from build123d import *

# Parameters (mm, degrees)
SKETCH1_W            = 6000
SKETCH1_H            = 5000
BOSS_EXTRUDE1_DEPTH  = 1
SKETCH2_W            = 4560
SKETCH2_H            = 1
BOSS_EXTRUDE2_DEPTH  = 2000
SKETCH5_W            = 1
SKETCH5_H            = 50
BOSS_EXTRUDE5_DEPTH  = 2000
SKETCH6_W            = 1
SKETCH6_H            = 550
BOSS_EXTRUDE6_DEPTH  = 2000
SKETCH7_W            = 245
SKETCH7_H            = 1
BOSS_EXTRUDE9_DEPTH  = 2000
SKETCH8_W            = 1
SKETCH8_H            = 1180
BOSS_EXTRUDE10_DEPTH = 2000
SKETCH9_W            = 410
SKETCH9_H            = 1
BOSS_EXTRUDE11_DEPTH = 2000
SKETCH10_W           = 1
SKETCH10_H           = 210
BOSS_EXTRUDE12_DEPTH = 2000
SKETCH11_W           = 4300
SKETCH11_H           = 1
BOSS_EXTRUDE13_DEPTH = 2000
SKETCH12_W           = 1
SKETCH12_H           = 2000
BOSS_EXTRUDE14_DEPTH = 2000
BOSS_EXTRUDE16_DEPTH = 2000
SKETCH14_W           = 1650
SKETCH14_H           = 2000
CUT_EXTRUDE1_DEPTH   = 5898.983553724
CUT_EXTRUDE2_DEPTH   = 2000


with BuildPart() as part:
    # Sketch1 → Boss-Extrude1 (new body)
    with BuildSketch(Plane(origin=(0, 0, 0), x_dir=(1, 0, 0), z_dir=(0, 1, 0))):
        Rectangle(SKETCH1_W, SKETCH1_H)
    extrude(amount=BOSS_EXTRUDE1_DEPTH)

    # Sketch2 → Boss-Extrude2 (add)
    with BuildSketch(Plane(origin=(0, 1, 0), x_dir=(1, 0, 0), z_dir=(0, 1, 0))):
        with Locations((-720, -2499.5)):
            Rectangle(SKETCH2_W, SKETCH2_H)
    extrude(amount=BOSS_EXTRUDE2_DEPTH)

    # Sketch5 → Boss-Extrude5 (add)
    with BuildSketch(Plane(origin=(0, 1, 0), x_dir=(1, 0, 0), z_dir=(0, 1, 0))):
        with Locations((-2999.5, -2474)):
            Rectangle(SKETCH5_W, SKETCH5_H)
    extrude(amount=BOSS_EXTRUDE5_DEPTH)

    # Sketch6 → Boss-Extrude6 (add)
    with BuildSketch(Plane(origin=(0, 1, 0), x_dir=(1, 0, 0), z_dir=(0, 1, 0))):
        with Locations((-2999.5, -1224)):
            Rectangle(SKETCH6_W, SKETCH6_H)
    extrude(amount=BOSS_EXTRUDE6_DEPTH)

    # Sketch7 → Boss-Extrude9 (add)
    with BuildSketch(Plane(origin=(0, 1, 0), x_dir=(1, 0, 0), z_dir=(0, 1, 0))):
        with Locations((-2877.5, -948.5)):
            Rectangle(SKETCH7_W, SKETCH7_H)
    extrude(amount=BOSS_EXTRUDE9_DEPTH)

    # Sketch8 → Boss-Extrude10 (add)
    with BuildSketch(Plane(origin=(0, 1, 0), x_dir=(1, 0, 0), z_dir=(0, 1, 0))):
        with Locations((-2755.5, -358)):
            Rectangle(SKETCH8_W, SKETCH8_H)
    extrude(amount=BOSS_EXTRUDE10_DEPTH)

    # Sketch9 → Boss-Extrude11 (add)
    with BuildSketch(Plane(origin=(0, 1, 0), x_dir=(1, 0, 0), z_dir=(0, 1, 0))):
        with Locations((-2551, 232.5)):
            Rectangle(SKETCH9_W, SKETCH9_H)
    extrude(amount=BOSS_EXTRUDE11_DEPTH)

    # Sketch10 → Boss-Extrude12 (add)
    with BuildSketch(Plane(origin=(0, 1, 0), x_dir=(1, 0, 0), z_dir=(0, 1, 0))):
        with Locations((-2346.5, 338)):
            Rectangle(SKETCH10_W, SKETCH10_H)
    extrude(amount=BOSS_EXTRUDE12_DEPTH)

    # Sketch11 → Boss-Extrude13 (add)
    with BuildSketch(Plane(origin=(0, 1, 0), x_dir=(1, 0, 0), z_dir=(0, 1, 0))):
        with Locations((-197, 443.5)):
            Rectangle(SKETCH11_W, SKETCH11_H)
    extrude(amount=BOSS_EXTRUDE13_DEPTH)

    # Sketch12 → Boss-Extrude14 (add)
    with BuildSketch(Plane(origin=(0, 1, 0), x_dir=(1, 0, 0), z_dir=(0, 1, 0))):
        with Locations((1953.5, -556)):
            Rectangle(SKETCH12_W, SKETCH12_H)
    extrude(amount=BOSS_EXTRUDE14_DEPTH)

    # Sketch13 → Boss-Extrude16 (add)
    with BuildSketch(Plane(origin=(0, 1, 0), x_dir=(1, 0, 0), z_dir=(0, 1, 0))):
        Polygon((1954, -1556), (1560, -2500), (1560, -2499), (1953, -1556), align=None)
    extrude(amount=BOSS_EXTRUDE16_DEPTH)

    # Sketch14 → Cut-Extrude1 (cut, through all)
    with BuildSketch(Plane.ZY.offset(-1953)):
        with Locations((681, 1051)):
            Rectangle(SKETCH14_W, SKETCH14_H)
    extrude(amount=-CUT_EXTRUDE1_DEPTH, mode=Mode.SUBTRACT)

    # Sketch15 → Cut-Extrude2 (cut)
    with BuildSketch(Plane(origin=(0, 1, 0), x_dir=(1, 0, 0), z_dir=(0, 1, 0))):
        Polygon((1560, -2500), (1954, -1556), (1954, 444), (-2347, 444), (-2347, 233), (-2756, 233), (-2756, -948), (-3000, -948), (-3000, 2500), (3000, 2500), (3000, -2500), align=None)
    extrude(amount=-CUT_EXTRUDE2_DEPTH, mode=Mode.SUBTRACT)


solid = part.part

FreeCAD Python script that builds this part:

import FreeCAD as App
import Part
import Sketcher

V = App.Vector
Q = App.Units.Quantity

doc = App.newDocument("Part")
body = doc.addObject("PartDesign::Body", "Body")

sketch1 = body.newObject("Sketcher::SketchObject", "Sketch")
sketch1.AttachmentSupport = (doc.getObject("XZ_Plane"), [""])
sketch1.MapMode = "FlatFace"
sketch1.addGeometry(Part.LineSegment(V(-3000, -2500, 0), V(-3000, 2500, 0)), False)
sketch1.addGeometry(Part.LineSegment(V(-3000, 2500, 0), V(3000, 2500, 0)), False)
sketch1.addGeometry(Part.LineSegment(V(3000, 2500, 0), V(3000, -2500, 0)), False)
sketch1.addGeometry(Part.LineSegment(V(3000, -2500, 0), V(-3000, -2500, 0)), False)
sketch1.addConstraint(Sketcher.Constraint("Coincident", 0, 2, 1, 1))
sketch1.addConstraint(Sketcher.Constraint("Coincident", 1, 2, 2, 1))
sketch1.addConstraint(Sketcher.Constraint("Coincident", 2, 2, 3, 1))
sketch1.addConstraint(Sketcher.Constraint("Coincident", 3, 2, 0, 1))
sketch1.addConstraint(Sketcher.Constraint("Vertical", 0))
sketch1.addConstraint(Sketcher.Constraint("Horizontal", 1))
sketch1.addConstraint(Sketcher.Constraint("Vertical", 2))
sketch1.addConstraint(Sketcher.Constraint("Horizontal", 3))
sketch1.addConstraint(Sketcher.Constraint("Symmetric", 0, 2, 2, 2, -1, 1))
sketch1.addConstraint(Sketcher.Constraint("DistanceX", 1, 1, 1, 2, Q("6000 mm")))
sketch1.addConstraint(Sketcher.Constraint("DistanceY", 0, 1, 0, 2, Q("5000 mm")))
pad1 = body.newObject("PartDesign::Pad", "Pad")
pad1.Profile = sketch1
pad1.Length = 1
pad1.Reversed = True

sketch2 = body.newObject("Sketcher::SketchObject", "Sketch001")
sketch2.AttachmentSupport = (doc.getObject("XZ_Plane"), [""])
sketch2.MapMode = "FlatFace"
sketch2.AttachmentOffset = App.Placement(V(0, 0, -1), App.Rotation())
sketch2.addGeometry(Part.LineSegment(V(-3000, 2499, 0), V(-3000, 2500, 0)), False)
sketch2.addGeometry(Part.LineSegment(V(-3000, 2500, 0), V(1560, 2500, 0)), False)
sketch2.addGeometry(Part.LineSegment(V(1560, 2500, 0), V(1560, 2499, 0)), False)
sketch2.addGeometry(Part.LineSegment(V(1560, 2499, 0), V(-3000, 2499, 0)), False)
sketch2.addConstraint(Sketcher.Constraint("Coincident", 0, 2, 1, 1))
sketch2.addConstraint(Sketcher.Constraint("Coincident", 1, 2, 2, 1))
sketch2.addConstraint(Sketcher.Constraint("Coincident", 2, 2, 3, 1))
sketch2.addConstraint(Sketcher.Constraint("Coincident", 3, 2, 0, 1))
sketch2.addConstraint(Sketcher.Constraint("Vertical", 0))
sketch2.addConstraint(Sketcher.Constraint("Horizontal", 1))
sketch2.addConstraint(Sketcher.Constraint("Vertical", 2))
sketch2.addConstraint(Sketcher.Constraint("Horizontal", 3))
sketch2.addConstraint(Sketcher.Constraint("DistanceX", 1, 1, 1, 2, Q("4560 mm")))
sketch2.addConstraint(Sketcher.Constraint("DistanceY", 0, 1, 0, 2, Q("1 mm")))
sketch2.addConstraint(Sketcher.Constraint("DistanceX", 0, 2, -1, 1, Q("3000 mm")))
sketch2.addConstraint(Sketcher.Constraint("DistanceY", -1, 1, 0, 2, Q("2500 mm")))
pad2 = body.newObject("PartDesign::Pad", "Pad001")
pad2.Profile = sketch2
pad2.Length = 2000
pad2.Reversed = True

sketch3 = body.newObject("Sketcher::SketchObject", "Sketch002")
sketch3.AttachmentSupport = (doc.getObject("XZ_Plane"), [""])
sketch3.MapMode = "FlatFace"
sketch3.AttachmentOffset = App.Placement(V(0, 0, -1), App.Rotation())
sketch3.addGeometry(Part.LineSegment(V(-3000, 2449, 0), V(-3000, 2499, 0)), False)
sketch3.addGeometry(Part.LineSegment(V(-3000, 2499, 0), V(-2999, 2499, 0)), False)
sketch3.addGeometry(Part.LineSegment(V(-2999, 2499, 0), V(-2999, 2449, 0)), False)
sketch3.addGeometry(Part.LineSegment(V(-2999, 2449, 0), V(-3000, 2449, 0)), False)
sketch3.addConstraint(Sketcher.Constraint("Coincident", 0, 2, 1, 1))
sketch3.addConstraint(Sketcher.Constraint("Coincident", 1, 2, 2, 1))
sketch3.addConstraint(Sketcher.Constraint("Coincident", 2, 2, 3, 1))
sketch3.addConstraint(Sketcher.Constraint("Coincident", 3, 2, 0, 1))
sketch3.addConstraint(Sketcher.Constraint("Vertical", 0))
sketch3.addConstraint(Sketcher.Constraint("Horizontal", 1))
sketch3.addConstraint(Sketcher.Constraint("Vertical", 2))
sketch3.addConstraint(Sketcher.Constraint("Horizontal", 3))
sketch3.addConstraint(Sketcher.Constraint("DistanceX", 1, 1, 1, 2, Q("1 mm")))
sketch3.addConstraint(Sketcher.Constraint("DistanceY", 0, 1, 0, 2, Q("50 mm")))
sketch3.addConstraint(Sketcher.Constraint("DistanceX", 0, 2, -1, 1, Q("3000 mm")))
sketch3.addConstraint(Sketcher.Constraint("DistanceY", -1, 1, 0, 2, Q("2499 mm")))
pad3 = body.newObject("PartDesign::Pad", "Pad002")
pad3.Profile = sketch3
pad3.Length = 2000
pad3.Reversed = True

sketch4 = body.newObject("Sketcher::SketchObject", "Sketch003")
sketch4.AttachmentSupport = (doc.getObject("XZ_Plane"), [""])
sketch4.MapMode = "FlatFace"
sketch4.AttachmentOffset = App.Placement(V(0, 0, -1), App.Rotation())
sketch4.addGeometry(Part.LineSegment(V(-3000, 949, 0), V(-3000, 1499, 0)), False)
sketch4.addGeometry(Part.LineSegment(V(-3000, 1499, 0), V(-2999, 1499, 0)), False)
sketch4.addGeometry(Part.LineSegment(V(-2999, 1499, 0), V(-2999, 949, 0)), False)
sketch4.addGeometry(Part.LineSegment(V(-2999, 949, 0), V(-3000, 949, 0)), False)
sketch4.addConstraint(Sketcher.Constraint("Coincident", 0, 2, 1, 1))
sketch4.addConstraint(Sketcher.Constraint("Coincident", 1, 2, 2, 1))
sketch4.addConstraint(Sketcher.Constraint("Coincident", 2, 2, 3, 1))
sketch4.addConstraint(Sketcher.Constraint("Coincident", 3, 2, 0, 1))
sketch4.addConstraint(Sketcher.Constraint("Vertical", 0))
sketch4.addConstraint(Sketcher.Constraint("Horizontal", 1))
sketch4.addConstraint(Sketcher.Constraint("Vertical", 2))
sketch4.addConstraint(Sketcher.Constraint("Horizontal", 3))
sketch4.addConstraint(Sketcher.Constraint("DistanceX", 1, 1, 1, 2, Q("1 mm")))
sketch4.addConstraint(Sketcher.Constraint("DistanceY", 0, 1, 0, 2, Q("550 mm")))
sketch4.addConstraint(Sketcher.Constraint("DistanceX", 0, 2, -1, 1, Q("3000 mm")))
sketch4.addConstraint(Sketcher.Constraint("DistanceY", -1, 1, 0, 2, Q("1499 mm")))
pad4 = body.newObject("PartDesign::Pad", "Pad003")
pad4.Profile = sketch4
pad4.Length = 2000
pad4.Reversed = True

sketch5 = body.newObject("Sketcher::SketchObject", "Sketch004")
sketch5.AttachmentSupport = (doc.getObject("XZ_Plane"), [""])
sketch5.MapMode = "FlatFace"
sketch5.AttachmentOffset = App.Placement(V(0, 0, -1), App.Rotation())
sketch5.addGeometry(Part.LineSegment(V(-3000, 948, 0), V(-3000, 949, 0)), False)
sketch5.addGeometry(Part.LineSegment(V(-3000, 949, 0), V(-2755, 949, 0)), False)
sketch5.addGeometry(Part.LineSegment(V(-2755, 949, 0), V(-2755, 948, 0)), False)
sketch5.addGeometry(Part.LineSegment(V(-2755, 948, 0), V(-3000, 948, 0)), False)
sketch5.addConstraint(Sketcher.Constraint("Coincident", 0, 2, 1, 1))
sketch5.addConstraint(Sketcher.Constraint("Coincident", 1, 2, 2, 1))
sketch5.addConstraint(Sketcher.Constraint("Coincident", 2, 2, 3, 1))
sketch5.addConstraint(Sketcher.Constraint("Coincident", 3, 2, 0, 1))
sketch5.addConstraint(Sketcher.Constraint("Vertical", 0))
sketch5.addConstraint(Sketcher.Constraint("Horizontal", 1))
sketch5.addConstraint(Sketcher.Constraint("Vertical", 2))
sketch5.addConstraint(Sketcher.Constraint("Horizontal", 3))
sketch5.addConstraint(Sketcher.Constraint("DistanceX", 1, 1, 1, 2, Q("245 mm")))
sketch5.addConstraint(Sketcher.Constraint("DistanceY", 0, 1, 0, 2, Q("1 mm")))
sketch5.addConstraint(Sketcher.Constraint("DistanceX", 0, 2, -1, 1, Q("3000 mm")))
sketch5.addConstraint(Sketcher.Constraint("DistanceY", -1, 1, 0, 2, Q("949 mm")))
pad5 = body.newObject("PartDesign::Pad", "Pad004")
pad5.Profile = sketch5
pad5.Length = 2000
pad5.Reversed = True

sketch6 = body.newObject("Sketcher::SketchObject", "Sketch005")
sketch6.AttachmentSupport = (doc.getObject("XZ_Plane"), [""])
sketch6.MapMode = "FlatFace"
sketch6.AttachmentOffset = App.Placement(V(0, 0, -1), App.Rotation())
sketch6.addGeometry(Part.LineSegment(V(-2756, -232, 0), V(-2756, 948, 0)), False)
sketch6.addGeometry(Part.LineSegment(V(-2756, 948, 0), V(-2755, 948, 0)), False)
sketch6.addGeometry(Part.LineSegment(V(-2755, 948, 0), V(-2755, -232, 0)), False)
sketch6.addGeometry(Part.LineSegment(V(-2755, -232, 0), V(-2756, -232, 0)), False)
sketch6.addConstraint(Sketcher.Constraint("Coincident", 0, 2, 1, 1))
sketch6.addConstraint(Sketcher.Constraint("Coincident", 1, 2, 2, 1))
sketch6.addConstraint(Sketcher.Constraint("Coincident", 2, 2, 3, 1))
sketch6.addConstraint(Sketcher.Constraint("Coincident", 3, 2, 0, 1))
sketch6.addConstraint(Sketcher.Constraint("Vertical", 0))
sketch6.addConstraint(Sketcher.Constraint("Horizontal", 1))
sketch6.addConstraint(Sketcher.Constraint("Vertical", 2))
sketch6.addConstraint(Sketcher.Constraint("Horizontal", 3))
sketch6.addConstraint(Sketcher.Constraint("DistanceX", 1, 1, 1, 2, Q("1 mm")))
sketch6.addConstraint(Sketcher.Constraint("DistanceY", 0, 1, 0, 2, Q("1180 mm")))
sketch6.addConstraint(Sketcher.Constraint("DistanceX", 0, 2, -1, 1, Q("2756 mm")))
sketch6.addConstraint(Sketcher.Constraint("DistanceY", -1, 1, 0, 2, Q("948 mm")))
pad6 = body.newObject("PartDesign::Pad", "Pad005")
pad6.Profile = sketch6
pad6.Length = 2000
pad6.Reversed = True

sketch7 = body.newObject("Sketcher::SketchObject", "Sketch006")
sketch7.AttachmentSupport = (doc.getObject("XZ_Plane"), [""])
sketch7.MapMode = "FlatFace"
sketch7.AttachmentOffset = App.Placement(V(0, 0, -1), App.Rotation())
sketch7.addGeometry(Part.LineSegment(V(-2756, -233, 0), V(-2756, -232, 0)), False)
sketch7.addGeometry(Part.LineSegment(V(-2756, -232, 0), V(-2346, -232, 0)), False)
sketch7.addGeometry(Part.LineSegment(V(-2346, -232, 0), V(-2346, -233, 0)), False)
sketch7.addGeometry(Part.LineSegment(V(-2346, -233, 0), V(-2756, -233, 0)), False)
sketch7.addConstraint(Sketcher.Constraint("Coincident", 0, 2, 1, 1))
sketch7.addConstraint(Sketcher.Constraint("Coincident", 1, 2, 2, 1))
sketch7.addConstraint(Sketcher.Constraint("Coincident", 2, 2, 3, 1))
sketch7.addConstraint(Sketcher.Constraint("Coincident", 3, 2, 0, 1))
sketch7.addConstraint(Sketcher.Constraint("Vertical", 0))
sketch7.addConstraint(Sketcher.Constraint("Horizontal", 1))
sketch7.addConstraint(Sketcher.Constraint("Vertical", 2))
sketch7.addConstraint(Sketcher.Constraint("Horizontal", 3))
sketch7.addConstraint(Sketcher.Constraint("DistanceX", 1, 1, 1, 2, Q("410 mm")))
sketch7.addConstraint(Sketcher.Constraint("DistanceY", 0, 1, 0, 2, Q("1 mm")))
sketch7.addConstraint(Sketcher.Constraint("DistanceX", 0, 2, -1, 1, Q("2756 mm")))
sketch7.addConstraint(Sketcher.Constraint("DistanceY", 0, 2, -1, 1, Q("232 mm")))
pad7 = body.newObject("PartDesign::Pad", "Pad006")
pad7.Profile = sketch7
pad7.Length = 2000
pad7.Reversed = True

sketch8 = body.newObject("Sketcher::SketchObject", "Sketch007")
sketch8.AttachmentSupport = (doc.getObject("XZ_Plane"), [""])
sketch8.MapMode = "FlatFace"
sketch8.AttachmentOffset = App.Placement(V(0, 0, -1), App.Rotation())
sketch8.addGeometry(Part.LineSegment(V(-2347, -443, 0), V(-2347, -233, 0)), False)
sketch8.addGeometry(Part.LineSegment(V(-2347, -233, 0), V(-2346, -233, 0)), False)
sketch8.addGeometry(Part.LineSegment(V(-2346, -233, 0), V(-2346, -443, 0)), False)
sketch8.addGeometry(Part.LineSegment(V(-2346, -443, 0), V(-2347, -443, 0)), False)
sketch8.addConstraint(Sketcher.Constraint("Coincident", 0, 2, 1, 1))
sketch8.addConstraint(Sketcher.Constraint("Coincident", 1, 2, 2, 1))
sketch8.addConstraint(Sketcher.Constraint("Coincident", 2, 2, 3, 1))
sketch8.addConstraint(Sketcher.Constraint("Coincident", 3, 2, 0, 1))
sketch8.addConstraint(Sketcher.Constraint("Vertical", 0))
sketch8.addConstraint(Sketcher.Constraint("Horizontal", 1))
sketch8.addConstraint(Sketcher.Constraint("Vertical", 2))
sketch8.addConstraint(Sketcher.Constraint("Horizontal", 3))
sketch8.addConstraint(Sketcher.Constraint("DistanceX", 1, 1, 1, 2, Q("1 mm")))
sketch8.addConstraint(Sketcher.Constraint("DistanceY", 0, 1, 0, 2, Q("210 mm")))
sketch8.addConstraint(Sketcher.Constraint("DistanceX", 0, 2, -1, 1, Q("2347 mm")))
sketch8.addConstraint(Sketcher.Constraint("DistanceY", 0, 2, -1, 1, Q("233 mm")))
pad8 = body.newObject("PartDesign::Pad", "Pad007")
pad8.Profile = sketch8
pad8.Length = 2000
pad8.Reversed = True

sketch9 = body.newObject("Sketcher::SketchObject", "Sketch008")
sketch9.AttachmentSupport = (doc.getObject("XZ_Plane"), [""])
sketch9.MapMode = "FlatFace"
sketch9.AttachmentOffset = App.Placement(V(0, 0, -1), App.Rotation())
sketch9.addGeometry(Part.LineSegment(V(-2347, -444, 0), V(-2347, -443, 0)), False)
sketch9.addGeometry(Part.LineSegment(V(-2347, -443, 0), V(1953, -443, 0)), False)
sketch9.addGeometry(Part.LineSegment(V(1953, -443, 0), V(1953, -444, 0)), False)
sketch9.addGeometry(Part.LineSegment(V(1953, -444, 0), V(-2347, -444, 0)), False)
sketch9.addConstraint(Sketcher.Constraint("Coincident", 0, 2, 1, 1))
sketch9.addConstraint(Sketcher.Constraint("Coincident", 1, 2, 2, 1))
sketch9.addConstraint(Sketcher.Constraint("Coincident", 2, 2, 3, 1))
sketch9.addConstraint(Sketcher.Constraint("Coincident", 3, 2, 0, 1))
sketch9.addConstraint(Sketcher.Constraint("Vertical", 0))
sketch9.addConstraint(Sketcher.Constraint("Horizontal", 1))
sketch9.addConstraint(Sketcher.Constraint("Vertical", 2))
sketch9.addConstraint(Sketcher.Constraint("Horizontal", 3))
sketch9.addConstraint(Sketcher.Constraint("DistanceX", 1, 1, 1, 2, Q("4300 mm")))
sketch9.addConstraint(Sketcher.Constraint("DistanceY", 0, 1, 0, 2, Q("1 mm")))
sketch9.addConstraint(Sketcher.Constraint("DistanceX", 0, 2, -1, 1, Q("2347 mm")))
sketch9.addConstraint(Sketcher.Constraint("DistanceY", 0, 2, -1, 1, Q("443 mm")))
pad9 = body.newObject("PartDesign::Pad", "Pad008")
pad9.Profile = sketch9
pad9.Length = 2000
pad9.Reversed = True

sketch10 = body.newObject("Sketcher::SketchObject", "Sketch009")
sketch10.AttachmentSupport = (doc.getObject("XZ_Plane"), [""])
sketch10.MapMode = "FlatFace"
sketch10.AttachmentOffset = App.Placement(V(0, 0, -1), App.Rotation())
sketch10.addGeometry(Part.LineSegment(V(1953, -444, 0), V(1953, 1556, 0)), False)
sketch10.addGeometry(Part.LineSegment(V(1953, 1556, 0), V(1954, 1556, 0)), False)
sketch10.addGeometry(Part.LineSegment(V(1954, 1556, 0), V(1954, -444, 0)), False)
sketch10.addGeometry(Part.LineSegment(V(1954, -444, 0), V(1953, -444, 0)), False)
sketch10.addConstraint(Sketcher.Constraint("Coincident", 0, 2, 1, 1))
sketch10.addConstraint(Sketcher.Constraint("Coincident", 1, 2, 2, 1))
sketch10.addConstraint(Sketcher.Constraint("Coincident", 2, 2, 3, 1))
sketch10.addConstraint(Sketcher.Constraint("Coincident", 3, 2, 0, 1))
sketch10.addConstraint(Sketcher.Constraint("Vertical", 0))
sketch10.addConstraint(Sketcher.Constraint("Horizontal", 1))
sketch10.addConstraint(Sketcher.Constraint("Vertical", 2))
sketch10.addConstraint(Sketcher.Constraint("Horizontal", 3))
sketch10.addConstraint(Sketcher.Constraint("DistanceX", 1, 1, 1, 2, Q("1 mm")))
sketch10.addConstraint(Sketcher.Constraint("DistanceY", 0, 1, 0, 2, Q("2000 mm")))
sketch10.addConstraint(Sketcher.Constraint("DistanceX", -1, 1, 0, 2, Q("1953 mm")))
sketch10.addConstraint(Sketcher.Constraint("DistanceY", -1, 1, 0, 2, Q("1556 mm")))
pad10 = body.newObject("PartDesign::Pad", "Pad009")
pad10.Profile = sketch10
pad10.Length = 2000
pad10.Reversed = True

sketch11 = body.newObject("Sketcher::SketchObject", "Sketch010")
sketch11.AttachmentSupport = (doc.getObject("XZ_Plane"), [""])
sketch11.MapMode = "FlatFace"
sketch11.AttachmentOffset = App.Placement(V(0, 0, -1), App.Rotation())
sketch11.addGeometry(Part.LineSegment(V(1560, 2500, 0), V(1954, 1556, 0)), False)
sketch11.addGeometry(Part.LineSegment(V(1954, 1556, 0), V(1953, 1556, 0)), False)
sketch11.addGeometry(Part.LineSegment(V(1953, 1556, 0), V(1560, 2499, 0)), False)
sketch11.addGeometry(Part.LineSegment(V(1560, 2499, 0), V(1560, 2500, 0)), False)
sketch11.addConstraint(Sketcher.Constraint("Coincident", 0, 2, 1, 1))
sketch11.addConstraint(Sketcher.Constraint("Coincident", 1, 2, 2, 1))
sketch11.addConstraint(Sketcher.Constraint("Coincident", 2, 2, 3, 1))
sketch11.addConstraint(Sketcher.Constraint("Coincident", 3, 2, 0, 1))
sketch11.addConstraint(Sketcher.Constraint("Horizontal", 1))
sketch11.addConstraint(Sketcher.Constraint("Vertical", 3))
sketch11.addConstraint(Sketcher.Constraint("Equal", 1, 3))
sketch11.addConstraint(Sketcher.Constraint("DistanceX", 1, 2, 1, 1, Q("1 mm")))
sketch11.addConstraint(Sketcher.Constraint("DistanceX", -1, 1, 0, 2, Q("1954 mm")))
sketch11.addConstraint(Sketcher.Constraint("DistanceY", -1, 1, 0, 2, Q("1556 mm")))
sketch11.addConstraint(Sketcher.Constraint("DistanceX", -1, 1, 2, 2, Q("1560 mm")))
sketch11.addConstraint(Sketcher.Constraint("DistanceY", -1, 1, 2, 2, Q("2499 mm")))
pad11 = body.newObject("PartDesign::Pad", "Pad010")
pad11.Profile = sketch11
pad11.Length = 2000
pad11.Reversed = True

sketch12 = body.newObject("Sketcher::SketchObject", "Sketch011")
sketch12.AttachmentSupport = (doc.getObject("YZ_Plane"), [""])
sketch12.MapMode = "FlatFace"
sketch12.AttachmentOffset = App.Placement(V(0, 0, 1953), App.Rotation())
sketch12.addGeometry(Part.LineSegment(V(2051, -144, 0), V(51, -144, 0)), False)
sketch12.addGeometry(Part.LineSegment(V(51, -144, 0), V(51, 1506, 0)), False)
sketch12.addGeometry(Part.LineSegment(V(51, 1506, 0), V(2051, 1506, 0)), False)
sketch12.addGeometry(Part.LineSegment(V(2051, 1506, 0), V(2051, -144, 0)), False)
sketch12.addConstraint(Sketcher.Constraint("Coincident", 0, 2, 1, 1))
sketch12.addConstraint(Sketcher.Constraint("Coincident", 1, 2, 2, 1))
sketch12.addConstraint(Sketcher.Constraint("Coincident", 2, 2, 3, 1))
sketch12.addConstraint(Sketcher.Constraint("Coincident", 3, 2, 0, 1))
sketch12.addConstraint(Sketcher.Constraint("Horizontal", 0))
sketch12.addConstraint(Sketcher.Constraint("Vertical", 1))
sketch12.addConstraint(Sketcher.Constraint("Horizontal", 2))
sketch12.addConstraint(Sketcher.Constraint("Vertical", 3))
sketch12.addConstraint(Sketcher.Constraint("DistanceX", 0, 2, 0, 1, Q("2000 mm")))
sketch12.addConstraint(Sketcher.Constraint("DistanceY", 1, 1, 1, 2, Q("1650 mm")))
sketch12.addConstraint(Sketcher.Constraint("DistanceX", -1, 1, 0, 2, Q("51 mm")))
sketch12.addConstraint(Sketcher.Constraint("DistanceY", 0, 2, -1, 1, Q("144 mm")))
pocket1 = body.newObject("PartDesign::Pocket", "Pocket")
pocket1.Profile = sketch12
pocket1.Type = "ThroughAll"
pocket1.Reversed = True

sketch13 = body.newObject("Sketcher::SketchObject", "Sketch012")
sketch13.AttachmentSupport = (doc.getObject("XZ_Plane"), [""])
sketch13.MapMode = "FlatFace"
sketch13.AttachmentOffset = App.Placement(V(0, 0, -1), App.Rotation())
sketch13.addGeometry(Part.LineSegment(V(1954, 1556, 0), V(1560, 2500, 0)), False)
sketch13.addGeometry(Part.LineSegment(V(1560, 2500, 0), V(3000, 2500, 0)), False)
sketch13.addGeometry(Part.LineSegment(V(3000, 2500, 0), V(3000, -2500, 0)), False)
sketch13.addGeometry(Part.LineSegment(V(3000, -2500, 0), V(-3000, -2500, 0)), False)
sketch13.addGeometry(Part.LineSegment(V(-3000, -2500, 0), V(-3000, 948, 0)), False)
sketch13.addGeometry(Part.LineSegment(V(-3000, 948, 0), V(-2756, 948, 0)), False)
sketch13.addGeometry(Part.LineSegment(V(-2756, 948, 0), V(-2756, -233, 0)), False)
sketch13.addGeometry(Part.LineSegment(V(-2756, -233, 0), V(-2347, -233, 0)), False)
sketch13.addGeometry(Part.LineSegment(V(-2347, -233, 0), V(-2347, -444, 0)), False)
sketch13.addGeometry(Part.LineSegment(V(-2347, -444, 0), V(1954, -444, 0)), False)
sketch13.addGeometry(Part.LineSegment(V(1954, -444, 0), V(1954, 1556, 0)), False)
sketch13.addConstraint(Sketcher.Constraint("Coincident", 0, 2, 1, 1))
sketch13.addConstraint(Sketcher.Constraint("Coincident", 1, 2, 2, 1))
sketch13.addConstraint(Sketcher.Constraint("Coincident", 2, 2, 3, 1))
sketch13.addConstraint(Sketcher.Constraint("Coincident", 3, 2, 4, 1))
sketch13.addConstraint(Sketcher.Constraint("Coincident", 4, 2, 5, 1))
sketch13.addConstraint(Sketcher.Constraint("Coincident", 5, 2, 6, 1))
sketch13.addConstraint(Sketcher.Constraint("Coincident", 6, 2, 7, 1))
sketch13.addConstraint(Sketcher.Constraint("Coincident", 7, 2, 8, 1))
sketch13.addConstraint(Sketcher.Constraint("Coincident", 8, 2, 9, 1))
sketch13.addConstraint(Sketcher.Constraint("Coincident", 9, 2, 10, 1))
sketch13.addConstraint(Sketcher.Constraint("Coincident", 10, 2, 0, 1))
sketch13.addConstraint(Sketcher.Constraint("Horizontal", 1))
sketch13.addConstraint(Sketcher.Constraint("Vertical", 2))
sketch13.addConstraint(Sketcher.Constraint("Horizontal", 3))
sketch13.addConstraint(Sketcher.Constraint("Vertical", 4))
sketch13.addConstraint(Sketcher.Constraint("Horizontal", 5))
sketch13.addConstraint(Sketcher.Constraint("Vertical", 6))
sketch13.addConstraint(Sketcher.Constraint("Horizontal", 7))
sketch13.addConstraint(Sketcher.Constraint("Vertical", 8))
sketch13.addConstraint(Sketcher.Constraint("Horizontal", 9))
sketch13.addConstraint(Sketcher.Constraint("Vertical", 10))
sketch13.addConstraint(Sketcher.Constraint("Symmetric", 1, 2, 3, 2, -1, 1))
sketch13.addConstraint(Sketcher.Constraint("DistanceX", 1, 1, 1, 2, Q("1440 mm")))
sketch13.addConstraint(Sketcher.Constraint("DistanceX", 3, 2, 3, 1, Q("6000 mm")))
sketch13.addConstraint(Sketcher.Constraint("DistanceX", 5, 1, 5, 2, Q("244 mm")))
sketch13.addConstraint(Sketcher.Constraint("DistanceX", 7, 1, 7, 2, Q("409 mm")))
sketch13.addConstraint(Sketcher.Constraint("DistanceX", 9, 1, 9, 2, Q("4301 mm")))
sketch13.addConstraint(Sketcher.Constraint("DistanceY", 2, 2, 2, 1, Q("5000 mm")))
sketch13.addConstraint(Sketcher.Constraint("DistanceY", 4, 1, 4, 2, Q("3448 mm")))
sketch13.addConstraint(Sketcher.Constraint("DistanceY", 6, 2, 6, 1, Q("1181 mm")))
sketch13.addConstraint(Sketcher.Constraint("DistanceY", 8, 2, 8, 1, Q("211 mm")))
sketch13.addConstraint(Sketcher.Constraint("DistanceY", 10, 1, 10, 2, Q("2000 mm")))
pocket2 = body.newObject("PartDesign::Pocket", "Pocket001")
pocket2.Profile = sketch13
pocket2.Length = 2000
pocket2.Reversed = True

doc.recompute()
